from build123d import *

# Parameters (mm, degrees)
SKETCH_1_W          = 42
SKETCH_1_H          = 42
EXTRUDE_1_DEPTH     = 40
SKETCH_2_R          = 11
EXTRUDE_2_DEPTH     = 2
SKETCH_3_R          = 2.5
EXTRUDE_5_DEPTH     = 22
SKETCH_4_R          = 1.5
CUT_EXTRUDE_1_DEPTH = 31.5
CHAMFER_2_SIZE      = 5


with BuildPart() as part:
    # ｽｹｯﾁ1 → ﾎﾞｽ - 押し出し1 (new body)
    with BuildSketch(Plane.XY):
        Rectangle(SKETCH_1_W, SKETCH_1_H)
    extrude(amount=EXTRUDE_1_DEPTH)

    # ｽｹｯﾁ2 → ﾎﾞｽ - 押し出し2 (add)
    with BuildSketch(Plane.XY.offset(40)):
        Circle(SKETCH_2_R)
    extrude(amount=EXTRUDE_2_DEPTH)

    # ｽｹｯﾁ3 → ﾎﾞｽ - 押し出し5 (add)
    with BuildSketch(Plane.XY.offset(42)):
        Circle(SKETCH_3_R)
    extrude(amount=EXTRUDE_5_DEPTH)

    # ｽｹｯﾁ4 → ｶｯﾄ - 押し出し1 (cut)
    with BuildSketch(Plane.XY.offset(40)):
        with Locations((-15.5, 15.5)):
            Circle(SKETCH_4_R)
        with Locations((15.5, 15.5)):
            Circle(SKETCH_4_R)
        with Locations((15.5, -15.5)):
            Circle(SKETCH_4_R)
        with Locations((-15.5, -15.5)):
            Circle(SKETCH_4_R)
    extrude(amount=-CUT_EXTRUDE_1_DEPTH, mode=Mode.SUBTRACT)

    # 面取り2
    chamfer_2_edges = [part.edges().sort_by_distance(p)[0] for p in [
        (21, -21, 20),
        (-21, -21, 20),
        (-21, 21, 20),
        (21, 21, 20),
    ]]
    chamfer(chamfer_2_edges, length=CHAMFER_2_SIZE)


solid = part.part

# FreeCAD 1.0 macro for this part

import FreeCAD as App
import Part
import Sketcher
from FreeCAD import Vector


def edges_at(feature, points):
    """Names of the edges that pass closest to the given points."""
    edges = feature.Shape.Edges
    near = lambda p: min(range(len(edges)), key=lambda i: edges[i].distToShape(Part.Vertex(*p))[0])
    return sorted({f"Edge{near(p) + 1}" for p in points})

doc = App.newDocument("Part")
body = doc.addObject("PartDesign::Body", "Body")

# Sketch on XY plane
sketch1 = body.newObject("Sketcher::SketchObject", "Sketch")
sketch1.AttachmentSupport = (doc.getObject("XY_Plane"), [""])
sketch1.MapMode = "FlatFace"
sketch1.addGeometry([
    Part.LineSegment(Vector(-21, 21, 0), Vector(-21, -21, 0)),
    Part.LineSegment(Vector(-21, -21, 0), Vector(21, -21, 0)),
    Part.LineSegment(Vector(21, -21, 0), Vector(21, 21, 0)),
    Part.LineSegment(Vector(21, 21, 0), Vector(-21, 21, 0)),
], False)
sketch1.addConstraint([
    Sketcher.Constraint("Coincident", 0, 2, 1, 1),
    Sketcher.Constraint("Coincident", 1, 2, 2, 1),
    Sketcher.Constraint("Coincident", 2, 2, 3, 1),
    Sketcher.Constraint("Coincident", 3, 2, 0, 1),
    Sketcher.Constraint("Vertical", 0),
    Sketcher.Constraint("Horizontal", 1),
    Sketcher.Constraint("Vertical", 2),
    Sketcher.Constraint("Horizontal", 3),
    Sketcher.Constraint("Symmetric", 0, 2, 2, 2, -1, 1),
    Sketcher.Constraint("Equal", 3, 0),
    Sketcher.Constraint("DistanceX", 1, 1, 1, 2, 42.0),
])
pad1 = body.newObject("PartDesign::Pad", "Pad")
pad1.Profile = sketch1
pad1.Length = 40

# Sketch on XY plane
sketch2 = body.newObject("Sketcher::SketchObject", "Sketch001")
sketch2.AttachmentSupport = (doc.getObject("XY_Plane"), [""])
sketch2.MapMode = "FlatFace"
sketch2.AttachmentOffset = App.Placement(Vector(0, 0, 40), App.Rotation())
sketch2.addGeometry(Part.Circle(Vector(0, 0, 0), Vector(0, 0, 1), 11), False)
sketch2.addConstraint([
    Sketcher.Constraint("Coincident", 0, 3, -1, 1),
    Sketcher.Constraint("Diameter", 0, 22.0),
])
pad2 = body.newObject("PartDesign::Pad", "Pad001")
pad2.Profile = sketch2
pad2.Length = 2

# Sketch on XY plane
sketch3 = body.newObject("Sketcher::SketchObject", "Sketch002")
sketch3.AttachmentSupport = (doc.getObject("XY_Plane"), [""])
sketch3.MapMode = "FlatFace"
sketch3.AttachmentOffset = App.Placement(Vector(0, 0, 42), App.Rotation())
sketch3.addGeometry(Part.Circle(Vector(0, 0, 0), Vector(0, 0, 1), 2.5), False)
sketch3.addConstraint([
    Sketcher.Constraint("Coincident", 0, 3, -1, 1),
    Sketcher.Constraint("Diameter", 0, 5.0),
])
pad3 = body.newObject("PartDesign::Pad", "Pad002")
pad3.Profile = sketch3
pad3.Length = 22

# Sketch on XY plane
sketch4 = body.newObject("Sketcher::SketchObject", "Sketch003")
sketch4.AttachmentSupport = (doc.getObject("XY_Plane"), [""])
sketch4.MapMode = "FlatFace"
sketch4.AttachmentOffset = App.Placement(Vector(0, 0, 40), App.Rotation())
sketch4.addGeometry([
    Part.Circle(Vector(-15.5, 15.5, 0), Vector(0, 0, 1), 1.5),
    Part.Circle(Vector(15.5, 15.5, 0), Vector(0, 0, 1), 1.5),
    Part.Circle(Vector(15.5, -15.5, 0), Vector(0, 0, 1), 1.5),
    Part.Circle(Vector(-15.5, -15.5, 0), Vector(0, 0, 1), 1.5),
], False)
sketch4.addConstraint([
    Sketcher.Constraint("Equal", 0, 1),
    Sketcher.Constraint("Equal", 1, 2),
    Sketcher.Constraint("Equal", 2, 3),
    Sketcher.Constraint("Symmetric", 0, 3, 2, 3, -1, 1),
    Sketcher.Constraint("Symmetric", 1, 3, 3, 3, -1, 1),
    Sketcher.Constraint("Symmetric", 0, 3, 1, 3, -2),
    Sketcher.Constraint("Diameter", 0, 3.0),
    Sketcher.Constraint("DistanceX", 0, 3, 1, 3, 31.0),
    Sketcher.Constraint("DistanceY", 2, 3, 1, 3, 31.0),
])
pocket1 = body.newObject("PartDesign::Pocket", "Pocket")
pocket1.Profile = sketch4
pocket1.Length = 31.5
doc.recompute()

chamfer = body.newObject("PartDesign::Chamfer", "Chamfer")
chamfer.Base = (pocket1, edges_at(pocket1, [
    (21, -21, 20),
    (-21, -21, 20),
    (-21, 21, 20),
    (21, 21, 20),
]))
chamfer.Size = 5

doc.recompute()
